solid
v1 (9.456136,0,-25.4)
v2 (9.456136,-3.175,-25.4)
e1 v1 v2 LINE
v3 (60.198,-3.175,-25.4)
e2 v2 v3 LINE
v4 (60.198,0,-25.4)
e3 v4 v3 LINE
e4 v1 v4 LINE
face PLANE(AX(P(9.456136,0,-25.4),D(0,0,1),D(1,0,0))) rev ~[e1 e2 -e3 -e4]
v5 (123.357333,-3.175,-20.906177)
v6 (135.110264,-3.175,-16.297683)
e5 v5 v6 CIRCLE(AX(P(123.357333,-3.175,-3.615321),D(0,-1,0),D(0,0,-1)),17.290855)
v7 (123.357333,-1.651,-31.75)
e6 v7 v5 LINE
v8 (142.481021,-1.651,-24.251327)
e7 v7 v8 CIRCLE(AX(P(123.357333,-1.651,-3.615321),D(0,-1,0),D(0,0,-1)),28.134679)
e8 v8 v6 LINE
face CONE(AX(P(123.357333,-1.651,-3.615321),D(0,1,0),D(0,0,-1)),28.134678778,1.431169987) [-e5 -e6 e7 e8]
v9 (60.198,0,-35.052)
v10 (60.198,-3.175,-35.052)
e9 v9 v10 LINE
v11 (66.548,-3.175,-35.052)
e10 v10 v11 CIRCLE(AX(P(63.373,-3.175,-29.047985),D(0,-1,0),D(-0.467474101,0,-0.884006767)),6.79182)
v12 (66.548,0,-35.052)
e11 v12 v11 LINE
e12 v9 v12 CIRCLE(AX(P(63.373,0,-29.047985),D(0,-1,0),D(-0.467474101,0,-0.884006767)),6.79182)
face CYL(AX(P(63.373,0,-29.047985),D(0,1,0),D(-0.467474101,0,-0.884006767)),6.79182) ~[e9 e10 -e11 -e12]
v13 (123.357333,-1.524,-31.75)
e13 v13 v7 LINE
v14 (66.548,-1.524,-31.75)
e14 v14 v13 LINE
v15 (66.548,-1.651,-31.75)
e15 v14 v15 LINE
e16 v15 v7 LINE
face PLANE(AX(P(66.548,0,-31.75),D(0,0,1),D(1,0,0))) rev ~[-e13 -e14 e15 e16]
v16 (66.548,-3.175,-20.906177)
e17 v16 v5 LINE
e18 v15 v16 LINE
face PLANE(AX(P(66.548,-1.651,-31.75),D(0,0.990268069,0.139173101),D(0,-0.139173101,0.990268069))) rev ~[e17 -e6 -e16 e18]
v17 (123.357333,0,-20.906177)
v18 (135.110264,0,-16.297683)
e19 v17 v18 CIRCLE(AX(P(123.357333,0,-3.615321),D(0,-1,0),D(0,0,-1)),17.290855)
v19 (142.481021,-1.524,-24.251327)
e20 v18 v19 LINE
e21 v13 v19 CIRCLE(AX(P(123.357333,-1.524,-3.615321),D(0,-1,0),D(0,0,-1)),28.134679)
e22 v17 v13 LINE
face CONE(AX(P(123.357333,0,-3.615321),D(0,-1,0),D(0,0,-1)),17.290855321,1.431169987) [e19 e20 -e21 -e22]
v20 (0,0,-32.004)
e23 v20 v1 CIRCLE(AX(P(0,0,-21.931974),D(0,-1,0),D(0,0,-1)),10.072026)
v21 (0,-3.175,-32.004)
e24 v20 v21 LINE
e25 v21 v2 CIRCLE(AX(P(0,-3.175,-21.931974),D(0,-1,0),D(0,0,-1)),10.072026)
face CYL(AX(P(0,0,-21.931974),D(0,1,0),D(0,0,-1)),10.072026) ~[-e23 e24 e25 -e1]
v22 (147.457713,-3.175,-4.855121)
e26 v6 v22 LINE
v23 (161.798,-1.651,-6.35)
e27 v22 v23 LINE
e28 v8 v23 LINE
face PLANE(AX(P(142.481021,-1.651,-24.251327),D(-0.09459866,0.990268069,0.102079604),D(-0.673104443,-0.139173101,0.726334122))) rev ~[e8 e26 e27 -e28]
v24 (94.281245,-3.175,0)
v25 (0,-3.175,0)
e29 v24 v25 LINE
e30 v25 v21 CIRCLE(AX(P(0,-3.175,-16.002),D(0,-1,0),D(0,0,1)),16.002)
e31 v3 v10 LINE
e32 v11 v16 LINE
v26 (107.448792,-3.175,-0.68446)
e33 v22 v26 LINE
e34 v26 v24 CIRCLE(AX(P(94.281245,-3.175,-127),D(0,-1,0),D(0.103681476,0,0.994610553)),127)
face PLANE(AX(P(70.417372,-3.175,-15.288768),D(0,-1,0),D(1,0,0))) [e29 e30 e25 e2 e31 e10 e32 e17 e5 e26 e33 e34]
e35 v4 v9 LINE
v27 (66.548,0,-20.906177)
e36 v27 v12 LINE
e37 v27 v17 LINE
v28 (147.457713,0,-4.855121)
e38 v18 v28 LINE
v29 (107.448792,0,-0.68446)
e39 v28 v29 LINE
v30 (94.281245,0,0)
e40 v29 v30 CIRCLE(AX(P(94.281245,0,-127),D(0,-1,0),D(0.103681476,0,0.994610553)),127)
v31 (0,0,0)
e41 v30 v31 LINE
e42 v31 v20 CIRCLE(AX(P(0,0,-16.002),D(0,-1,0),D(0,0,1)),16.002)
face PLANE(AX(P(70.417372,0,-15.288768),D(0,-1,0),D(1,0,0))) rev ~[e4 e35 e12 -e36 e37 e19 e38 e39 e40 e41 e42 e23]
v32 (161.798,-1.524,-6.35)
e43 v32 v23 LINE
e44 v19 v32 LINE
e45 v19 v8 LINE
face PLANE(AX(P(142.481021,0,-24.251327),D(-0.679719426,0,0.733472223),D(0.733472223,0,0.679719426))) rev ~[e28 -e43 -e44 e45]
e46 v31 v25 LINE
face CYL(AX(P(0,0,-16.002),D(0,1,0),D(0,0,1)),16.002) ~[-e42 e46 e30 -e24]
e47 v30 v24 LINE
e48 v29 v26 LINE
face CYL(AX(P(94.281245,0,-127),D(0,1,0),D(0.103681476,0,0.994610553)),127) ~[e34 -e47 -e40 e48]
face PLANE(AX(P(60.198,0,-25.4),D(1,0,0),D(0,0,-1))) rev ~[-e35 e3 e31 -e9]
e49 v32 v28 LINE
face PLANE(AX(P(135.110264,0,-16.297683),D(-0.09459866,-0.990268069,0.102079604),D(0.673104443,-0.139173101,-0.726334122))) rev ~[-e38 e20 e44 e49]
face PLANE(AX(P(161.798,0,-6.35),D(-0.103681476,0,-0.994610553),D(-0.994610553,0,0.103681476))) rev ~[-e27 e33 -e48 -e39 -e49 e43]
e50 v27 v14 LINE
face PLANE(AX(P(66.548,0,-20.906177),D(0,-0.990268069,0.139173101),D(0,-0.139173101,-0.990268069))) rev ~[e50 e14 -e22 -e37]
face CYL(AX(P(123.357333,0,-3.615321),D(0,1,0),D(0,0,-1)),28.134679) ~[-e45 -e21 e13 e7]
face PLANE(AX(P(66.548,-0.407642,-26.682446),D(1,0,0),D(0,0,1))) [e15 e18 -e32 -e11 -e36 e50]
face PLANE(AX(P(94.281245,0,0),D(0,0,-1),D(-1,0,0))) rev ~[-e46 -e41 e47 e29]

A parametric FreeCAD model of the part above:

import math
import FreeCAD as App
import Part
import Sketcher
from FreeCAD import Vector
Q = App.Units.Quantity


def add_polygon(sketch, points):
    """Adds a closed chain of lines whose ends are joined by coincident constraints."""
    first, n = sketch.GeometryCount, len(points)
    for a, b in zip(points, points[1:] + points[:1]):
        sketch.addGeometry(Part.LineSegment(App.Vector(*a, 0), App.Vector(*b, 0)), False)
    for i in range(n):
        sketch.addConstraint(Sketcher.Constraint("Coincident", first + i, 2, first + (i + 1) % n, 1))

doc = App.newDocument("Part")
body = doc.addObject("PartDesign::Body", "Body")

# Sketch on XZ plane
sketch1 = doc.addObject("Sketcher::SketchObject", "Sketch")
body.addObject(sketch1)
sketch1.AttachmentSupport = (doc.XZ_Plane, [""])
sketch1.MapMode = "FlatFace"
sketch1.addGeometry(Part.LineSegment(Vector(94.3, 0, 0), Vector(0, 0, 0)), False)
sketch1.addGeometry(Part.ArcOfCircle(Part.Circle(Vector(0, -16, 0), Vector(0, 0, 1), 16), math.radians(90), math.radians(270)), False)
sketch1.addGeometry(Part.ArcOfCircle(Part.Circle(Vector(0, -21.9, 0), Vector(0, 0, 1), 10.1), math.radians(-90), math.radians(-20)), False)
sketch1.addGeometry(Part.LineSegment(Vector(9.5, -25.4, 0), Vector(60.2, -25.4, 0)), False)
sketch1.addGeometry(Part.LineSegment(Vector(60.2, -25.4, 0), Vector(60.2, -35.1, 0)), False)
sketch1.addGeometry(Part.ArcOfCircle(Part.Circle(Vector(63.4, -29, 0), Vector(0, 0, 1), 6.8), math.radians(-118), math.radians(-62)), False)
sketch1.addGeometry(Part.LineSegment(Vector(66.5, -35.1, 0), Vector(66.5, -31.8, 0)), False)
sketch1.addGeometry(Part.LineSegment(Vector(66.5, -31.8, 0), Vector(123.4, -31.8, 0)), False)
sketch1.addGeometry(Part.ArcOfCircle(Part.Circle(Vector(123.4, -3.6, 0), Vector(0, 0, 1), 28.1), math.radians(-90), math.radians(-47)), False)
sketch1.addGeometry(Part.LineSegment(Vector(142.5, -24.3, 0), Vector(161.8, -6.3, 0)), False)
sketch1.addGeometry(Part.LineSegment(Vector(161.8, -6.3, 0), Vector(107.4, -0.7, 0)), False)
sketch1.addGeometry(Part.ArcOfCircle(Part.Circle(Vector(94.3, -127, 0), Vector(0, 0, 1), 127), math.radians(84.05), math.radians(90)), False)
sketch1.addConstraint(Sketcher.Constraint("Tangent", 0, 2, 1, 1))
sketch1.addConstraint(Sketcher.Constraint("Tangent", 1, 2, 2, 1))
sketch1.addConstraint(Sketcher.Constraint("Coincident", 2, 2, 3, 1))
sketch1.addConstraint(Sketcher.Constraint("Coincident", 3, 2, 4, 1))
sketch1.addConstraint(Sketcher.Constraint("Coincident", 4, 2, 5, 1))
sketch1.addConstraint(Sketcher.Constraint("Coincident", 5, 2, 6, 1))
sketch1.addConstraint(Sketcher.Constraint("Coincident", 6, 2, 7, 1))
sketch1.addConstraint(Sketcher.Constraint("Tangent", 7, 2, 8, 1))
sketch1.addConstraint(Sketcher.Constraint("Tangent", 8, 2, 9, 1))
sketch1.addConstraint(Sketcher.Constraint("Coincident", 9, 2, 10, 1))
sketch1.addConstraint(Sketcher.Constraint("Tangent", 10, 2, 11, 1))
sketch1.addConstraint(Sketcher.Constraint("Tangent", 11, 2, 0, 1))
sketch1.addConstraint(Sketcher.Constraint("Horizontal", 0))
sketch1.addConstraint(Sketcher.Constraint("Horizontal", 3))
sketch1.addConstraint(Sketcher.Constraint("Vertical", 4))
sketch1.addConstraint(Sketcher.Constraint("Vertical", 6))
sketch1.addConstraint(Sketcher.Constraint("Horizontal", 7))
sketch1.addConstraint(Sketcher.Constraint("Coincident", 0, 2, -1, 1))
sketch1.addConstraint(Sketcher.Constraint("PointOnObject", 2, 3, -2))
sketch1.addConstraint(Sketcher.Constraint("Horizontal", 4, 2, 5, 2))
sketch1.addConstraint(Sketcher.Constraint("Radius", 11, Q("5 in")))
sketch1.addConstraint(Sketcher.Constraint("Radius", 1, Q("0.63 in")))
sketch1.addConstraint(Sketcher.Constraint("DistanceY", 2, 2, -1, 1, Q("1 in")))
sketch1.addConstraint(Sketcher.Constraint("DistanceY", 7, 2, 9, 2, Q("1 in")))
sketch1.addConstraint(Sketcher.Constraint("DistanceY", 4, 2, 4, 1, Q("0.38 in")))
sketch1.addConstraint(Sketcher.Constraint("DistanceY", 6, 1, 6, 2, Q("0.13 in")))
sketch1.addConstraint(Sketcher.Constraint("DistanceX", -1, 1, 3, 2, Q("2.37 in")))
sketch1.addConstraint(Sketcher.Constraint("DistanceX", -1, 1, 5, 2, Q("2.62 in")))
sketch1.addConstraint(Sketcher.Constraint("DistanceX", -1, 1, 9, 2, Q("6.37 in")))
sketch1.addConstraint(Sketcher.Constraint("Radius", 5, Q("6.79182 mm")))
sketch1.addConstraint(Sketcher.Constraint("Radius", 8, Q("28.134679 mm")))
sketch1.addConstraint(Sketcher.Constraint("Radius", 2, Q("10.072026 mm")))
sketch1.addConstraint(Sketcher.Constraint("DistanceX", 0, 2, 0, 1, Q("94.281245 mm")))
sketch1.addConstraint(Sketcher.Constraint("DistanceX", 7, 1, 7, 2, Q("56.809333 mm")))
pad1 = doc.addObject("PartDesign::Pad", "Pad")
body.addObject(pad1)
pad1.Profile = sketch1
pad1.Length = Q("0.125 in")

# Sketch on YZ plane
sketch2 = doc.addObject("Sketcher::SketchObject", "Sketch001")
body.addObject(sketch2)
sketch2.AttachmentSupport = (doc.YZ_Plane, [""])
sketch2.MapMode = "FlatFace"
sketch2.AttachmentOffset = App.Placement(Vector(0, 0, 2.62 * 25.4), App.Rotation())
add_polygon(sketch2, [(-3.2, -31.8), (-1.7, -31.8), (-3.2, -20.9)])  # lines 0-2
sketch2.addConstraint(Sketcher.Constraint("Horizontal", 0))
sketch2.addConstraint(Sketcher.Constraint("Vertical", 2))
sketch2.addConstraint(Sketcher.Constraint("Angle", 1, Q("98 deg")))
sketch2.addConstraint(Sketcher.Constraint("DistanceX", 0, 1, 0, 2, Q("0.06 in")))
sketch2.addConstraint(Sketcher.Constraint("DistanceY", 0, 2, -1, 1, Q("1.25 in")))
sketch2.addConstraint(Sketcher.Constraint("DistanceX", 0, 2, -1, 1, Q("0.065 in")))

# Sketch on XZ plane
sketch3 = doc.addObject("Sketcher::SketchObject", "Sketch002")
body.addObject(sketch3)
sketch3.AttachmentSupport = (doc.XZ_Plane, [""])
sketch3.MapMode = "FlatFace"
sketch3.AttachmentOffset = App.Placement(Vector(0, 0, 0.125 * 25.4), App.Rotation())
sketch3.addGeometry(Part.LineSegment(Vector(67, -32, 0), Vector(123, -32, 0)), False)
sketch3.addGeometry(Part.ArcOfCircle(Part.Circle(Vector(123, -4, 0), Vector(0, 0, 1), 28), math.radians(-90), math.radians(-47)), False)
sketch3.addGeometry(Part.LineSegment(Vector(142, -24, 0), Vector(162, -6, 0)), False)
sketch3.addConstraint(Sketcher.Constraint("Tangent", 0, 2, 1, 1))
sketch3.addConstraint(Sketcher.Constraint("Tangent", 1, 2, 2, 1))
sketch3.addConstraint(Sketcher.Constraint("Horizontal", 0))
sketch3.addConstraint(Sketcher.Constraint("DistanceY", 0, 2, 2, 2, Q("1 in")))
sketch3.addConstraint(Sketcher.Constraint("DistanceX", -1, 1, 0, 1, Q("2.62 in")))
sketch3.addConstraint(Sketcher.Constraint("DistanceY", 0, 1, -1, 1, Q("1.25 in")))
sketch3.addConstraint(Sketcher.Constraint("DistanceX", -1, 1, 2, 2, Q("6.37 in")))
sketch3.addConstraint(Sketcher.Constraint("Radius", 1, Q("28.134679 mm")))
sketch3.addConstraint(Sketcher.Constraint("DistanceX", 0, 1, 0, 2, Q("56.809333 mm")))
doc.recompute()

subtractivepipe = doc.addObject("PartDesign::SubtractivePipe", "SubtractivePipe")
body.addObject(subtractivepipe)
subtractivepipe.Profile = sketch2
subtractivepipe.Spine = (sketch3, ["Edge1", "Edge2", "Edge3"])

# Sketch on YZ plane
sketch4 = doc.addObject("Sketcher::SketchObject", "Sketch003")
body.addObject(sketch4)
sketch4.AttachmentSupport = (doc.YZ_Plane, [""])
sketch4.MapMode = "FlatFace"
sketch4.AttachmentOffset = App.Placement(Vector(0, 0, 2.62 * 25.4), App.Rotation())
add_polygon(sketch4, [(0, -20.9), (-1.5, -31.8), (0, -31.8)])  # lines 0-2
sketch4.addConstraint(Sketcher.Constraint("Horizontal", 1))
sketch4.addConstraint(Sketcher.Constraint("Vertical", 2))
sketch4.addConstraint(Sketcher.Constraint("PointOnObject", 1, 2, -2))
sketch4.addConstraint(Sketcher.Constraint("Angle", 0, Q("-98 deg")))
sketch4.addConstraint(Sketcher.Constraint("DistanceX", 1, 1, 1, 2, Q("0.06 in")))
sketch4.addConstraint(Sketcher.Constraint("DistanceY", 0, 2, -1, 1, Q("1.25 in")))

# Sketch on XZ plane
sketch5 = doc.addObject("Sketcher::SketchObject", "Sketch004")
body.addObject(sketch5)
sketch5.AttachmentSupport = (doc.XZ_Plane, [""])
sketch5.MapMode = "FlatFace"
sketch5.addGeometry(Part.LineSegment(Vector(67, -32, 0), Vector(123, -32, 0)), False)
sketch5.addGeometry(Part.ArcOfCircle(Part.Circle(Vector(123, -4, 0), Vector(0, 0, 1), 28), math.radians(-90), math.radians(-47)), False)
sketch5.addGeometry(Part.LineSegment(Vector(142, -24, 0), Vector(162, -6, 0)), False)
sketch5.addConstraint(Sketcher.Constraint("Tangent", 0, 2, 1, 1))
sketch5.addConstraint(Sketcher.Constraint("Tangent", 1, 2, 2, 1))
sketch5.addConstraint(Sketcher.Constraint("Horizontal", 0))
sketch5.addConstraint(Sketcher.Constraint("DistanceY", 0, 2, 2, 2, Q("1 in")))
sketch5.addConstraint(Sketcher.Constraint("DistanceX", -1, 1, 0, 1, Q("2.62 in")))
sketch5.addConstraint(Sketcher.Constraint("DistanceY", 0, 1, -1, 1, Q("1.25 in")))
sketch5.addConstraint(Sketcher.Constraint("DistanceX", -1, 1, 2, 2, Q("6.37 in")))
sketch5.addConstraint(Sketcher.Constraint("Radius", 1, Q("28.134679 mm")))
sketch5.addConstraint(Sketcher.Constraint("DistanceX", 0, 1, 0, 2, Q("56.809333 mm")))
doc.recompute()

subtractivepipe2 = doc.addObject("PartDesign::SubtractivePipe", "SubtractivePipe001")
body.addObject(subtractivepipe2)
subtractivepipe2.Profile = sketch4
subtractivepipe2.Spine = (sketch5, ["Edge1", "Edge2", "Edge3"])

doc.recompute()
